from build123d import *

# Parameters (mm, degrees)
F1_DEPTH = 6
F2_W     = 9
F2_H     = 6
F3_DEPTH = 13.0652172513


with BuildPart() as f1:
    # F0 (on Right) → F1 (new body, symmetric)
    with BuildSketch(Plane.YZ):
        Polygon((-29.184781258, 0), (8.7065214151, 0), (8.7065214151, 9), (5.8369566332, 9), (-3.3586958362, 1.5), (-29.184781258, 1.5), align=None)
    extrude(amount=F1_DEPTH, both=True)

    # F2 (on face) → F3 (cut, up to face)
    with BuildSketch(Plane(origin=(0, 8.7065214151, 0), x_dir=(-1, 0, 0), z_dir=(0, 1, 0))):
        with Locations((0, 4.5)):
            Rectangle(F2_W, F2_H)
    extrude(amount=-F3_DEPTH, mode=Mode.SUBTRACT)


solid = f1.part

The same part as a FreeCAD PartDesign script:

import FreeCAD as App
import Part
import Sketcher


def add_polygon(sketch, points):
    """Adds a closed chain of lines whose ends are joined by coincident constraints."""
    first, n = sketch.GeometryCount, len(points)
    for a, b in zip(points, points[1:] + points[:1]):
        sketch.addGeometry(Part.LineSegment(App.Vector(*a, 0), App.Vector(*b, 0)), False)
    for i in range(n):
        sketch.addConstraint(Sketcher.Constraint("Coincident", first + i, 2, first + (i + 1) % n, 1))

doc = App.newDocument("Part")
body = doc.addObject("PartDesign::Body", "Body")

# Sketch on YZ plane
sketch1 = body.newObject("Sketcher::SketchObject", "Sketch")
sketch1.AttachmentSupport = (doc.getObject("YZ_Plane"), [""])
sketch1.MapMode = "FlatFace"
add_polygon(sketch1, [(-29.2, 0), (8.7, 0), (8.7, 9), (5.8, 9), (-3.4, 1.5), (-29.2, 1.5)])  # lines 0-5
sketch1.addConstraint([
    Sketcher.Constraint("Horizontal", 0),
    Sketcher.Constraint("Vertical", 1),
    Sketcher.Constraint("Horizontal", 2),
    Sketcher.Constraint("Horizontal", 4),
    Sketcher.Constraint("Vertical", 5),
    Sketcher.Constraint("PointOnObject", 0, 2, -1),
    Sketcher.Constraint("DistanceY", 1, 1, 1, 2, 9.0),
    Sketcher.Constraint("DistanceY", 5, 2, 5, 1, 1.5),
    Sketcher.Constraint("Distance", 3, 11.86634),
    Sketcher.Constraint("DistanceX", 0, 1, 0, 2, 37.891303),
    Sketcher.Constraint("DistanceX", 2, 2, 2, 1, 2.869565),
    Sketcher.Constraint("DistanceX", -1, 1, 0, 2, 8.706521),
])
pad1 = body.newObject("PartDesign::Pad", "Pad")
pad1.Profile = sketch1
pad1.Length = 12
pad1.Midplane = True

# Sketch on XZ plane
sketch2 = body.newObject("Sketcher::SketchObject", "Sketch001")
sketch2.AttachmentSupport = (doc.getObject("XZ_Plane"), [""])
sketch2.MapMode = "FlatFace"
sketch2.AttachmentOffset = App.Placement(App.Vector(0, 0, -8.706521), App.Rotation())
add_polygon(sketch2, [(4, 8), (4, 2), (-4, 2), (-4, 8)])  # lines 0-3
sketch2.addConstraint([
    Sketcher.Constraint("Vertical", 0),
    Sketcher.Constraint("Horizontal", 1),
    Sketcher.Constraint("Vertical", 2),
    Sketcher.Constraint("Horizontal", 3),
    Sketcher.Constraint("DistanceX", 1, 2, 1, 1, 9.0),
    Sketcher.Constraint("DistanceY", 0, 2, 0, 1, 6.0),
    Sketcher.Constraint("DistanceX", -1, 1, 0, 2, 4.5),
    Sketcher.Constraint("DistanceY", -1, 1, 0, 2, 1.5),
])
pocket1 = body.newObject("PartDesign::Pocket", "Pocket")
pocket1.Profile = sketch2
pocket1.Length = 13.065217
pocket1.Reversed = True

doc.recompute()
